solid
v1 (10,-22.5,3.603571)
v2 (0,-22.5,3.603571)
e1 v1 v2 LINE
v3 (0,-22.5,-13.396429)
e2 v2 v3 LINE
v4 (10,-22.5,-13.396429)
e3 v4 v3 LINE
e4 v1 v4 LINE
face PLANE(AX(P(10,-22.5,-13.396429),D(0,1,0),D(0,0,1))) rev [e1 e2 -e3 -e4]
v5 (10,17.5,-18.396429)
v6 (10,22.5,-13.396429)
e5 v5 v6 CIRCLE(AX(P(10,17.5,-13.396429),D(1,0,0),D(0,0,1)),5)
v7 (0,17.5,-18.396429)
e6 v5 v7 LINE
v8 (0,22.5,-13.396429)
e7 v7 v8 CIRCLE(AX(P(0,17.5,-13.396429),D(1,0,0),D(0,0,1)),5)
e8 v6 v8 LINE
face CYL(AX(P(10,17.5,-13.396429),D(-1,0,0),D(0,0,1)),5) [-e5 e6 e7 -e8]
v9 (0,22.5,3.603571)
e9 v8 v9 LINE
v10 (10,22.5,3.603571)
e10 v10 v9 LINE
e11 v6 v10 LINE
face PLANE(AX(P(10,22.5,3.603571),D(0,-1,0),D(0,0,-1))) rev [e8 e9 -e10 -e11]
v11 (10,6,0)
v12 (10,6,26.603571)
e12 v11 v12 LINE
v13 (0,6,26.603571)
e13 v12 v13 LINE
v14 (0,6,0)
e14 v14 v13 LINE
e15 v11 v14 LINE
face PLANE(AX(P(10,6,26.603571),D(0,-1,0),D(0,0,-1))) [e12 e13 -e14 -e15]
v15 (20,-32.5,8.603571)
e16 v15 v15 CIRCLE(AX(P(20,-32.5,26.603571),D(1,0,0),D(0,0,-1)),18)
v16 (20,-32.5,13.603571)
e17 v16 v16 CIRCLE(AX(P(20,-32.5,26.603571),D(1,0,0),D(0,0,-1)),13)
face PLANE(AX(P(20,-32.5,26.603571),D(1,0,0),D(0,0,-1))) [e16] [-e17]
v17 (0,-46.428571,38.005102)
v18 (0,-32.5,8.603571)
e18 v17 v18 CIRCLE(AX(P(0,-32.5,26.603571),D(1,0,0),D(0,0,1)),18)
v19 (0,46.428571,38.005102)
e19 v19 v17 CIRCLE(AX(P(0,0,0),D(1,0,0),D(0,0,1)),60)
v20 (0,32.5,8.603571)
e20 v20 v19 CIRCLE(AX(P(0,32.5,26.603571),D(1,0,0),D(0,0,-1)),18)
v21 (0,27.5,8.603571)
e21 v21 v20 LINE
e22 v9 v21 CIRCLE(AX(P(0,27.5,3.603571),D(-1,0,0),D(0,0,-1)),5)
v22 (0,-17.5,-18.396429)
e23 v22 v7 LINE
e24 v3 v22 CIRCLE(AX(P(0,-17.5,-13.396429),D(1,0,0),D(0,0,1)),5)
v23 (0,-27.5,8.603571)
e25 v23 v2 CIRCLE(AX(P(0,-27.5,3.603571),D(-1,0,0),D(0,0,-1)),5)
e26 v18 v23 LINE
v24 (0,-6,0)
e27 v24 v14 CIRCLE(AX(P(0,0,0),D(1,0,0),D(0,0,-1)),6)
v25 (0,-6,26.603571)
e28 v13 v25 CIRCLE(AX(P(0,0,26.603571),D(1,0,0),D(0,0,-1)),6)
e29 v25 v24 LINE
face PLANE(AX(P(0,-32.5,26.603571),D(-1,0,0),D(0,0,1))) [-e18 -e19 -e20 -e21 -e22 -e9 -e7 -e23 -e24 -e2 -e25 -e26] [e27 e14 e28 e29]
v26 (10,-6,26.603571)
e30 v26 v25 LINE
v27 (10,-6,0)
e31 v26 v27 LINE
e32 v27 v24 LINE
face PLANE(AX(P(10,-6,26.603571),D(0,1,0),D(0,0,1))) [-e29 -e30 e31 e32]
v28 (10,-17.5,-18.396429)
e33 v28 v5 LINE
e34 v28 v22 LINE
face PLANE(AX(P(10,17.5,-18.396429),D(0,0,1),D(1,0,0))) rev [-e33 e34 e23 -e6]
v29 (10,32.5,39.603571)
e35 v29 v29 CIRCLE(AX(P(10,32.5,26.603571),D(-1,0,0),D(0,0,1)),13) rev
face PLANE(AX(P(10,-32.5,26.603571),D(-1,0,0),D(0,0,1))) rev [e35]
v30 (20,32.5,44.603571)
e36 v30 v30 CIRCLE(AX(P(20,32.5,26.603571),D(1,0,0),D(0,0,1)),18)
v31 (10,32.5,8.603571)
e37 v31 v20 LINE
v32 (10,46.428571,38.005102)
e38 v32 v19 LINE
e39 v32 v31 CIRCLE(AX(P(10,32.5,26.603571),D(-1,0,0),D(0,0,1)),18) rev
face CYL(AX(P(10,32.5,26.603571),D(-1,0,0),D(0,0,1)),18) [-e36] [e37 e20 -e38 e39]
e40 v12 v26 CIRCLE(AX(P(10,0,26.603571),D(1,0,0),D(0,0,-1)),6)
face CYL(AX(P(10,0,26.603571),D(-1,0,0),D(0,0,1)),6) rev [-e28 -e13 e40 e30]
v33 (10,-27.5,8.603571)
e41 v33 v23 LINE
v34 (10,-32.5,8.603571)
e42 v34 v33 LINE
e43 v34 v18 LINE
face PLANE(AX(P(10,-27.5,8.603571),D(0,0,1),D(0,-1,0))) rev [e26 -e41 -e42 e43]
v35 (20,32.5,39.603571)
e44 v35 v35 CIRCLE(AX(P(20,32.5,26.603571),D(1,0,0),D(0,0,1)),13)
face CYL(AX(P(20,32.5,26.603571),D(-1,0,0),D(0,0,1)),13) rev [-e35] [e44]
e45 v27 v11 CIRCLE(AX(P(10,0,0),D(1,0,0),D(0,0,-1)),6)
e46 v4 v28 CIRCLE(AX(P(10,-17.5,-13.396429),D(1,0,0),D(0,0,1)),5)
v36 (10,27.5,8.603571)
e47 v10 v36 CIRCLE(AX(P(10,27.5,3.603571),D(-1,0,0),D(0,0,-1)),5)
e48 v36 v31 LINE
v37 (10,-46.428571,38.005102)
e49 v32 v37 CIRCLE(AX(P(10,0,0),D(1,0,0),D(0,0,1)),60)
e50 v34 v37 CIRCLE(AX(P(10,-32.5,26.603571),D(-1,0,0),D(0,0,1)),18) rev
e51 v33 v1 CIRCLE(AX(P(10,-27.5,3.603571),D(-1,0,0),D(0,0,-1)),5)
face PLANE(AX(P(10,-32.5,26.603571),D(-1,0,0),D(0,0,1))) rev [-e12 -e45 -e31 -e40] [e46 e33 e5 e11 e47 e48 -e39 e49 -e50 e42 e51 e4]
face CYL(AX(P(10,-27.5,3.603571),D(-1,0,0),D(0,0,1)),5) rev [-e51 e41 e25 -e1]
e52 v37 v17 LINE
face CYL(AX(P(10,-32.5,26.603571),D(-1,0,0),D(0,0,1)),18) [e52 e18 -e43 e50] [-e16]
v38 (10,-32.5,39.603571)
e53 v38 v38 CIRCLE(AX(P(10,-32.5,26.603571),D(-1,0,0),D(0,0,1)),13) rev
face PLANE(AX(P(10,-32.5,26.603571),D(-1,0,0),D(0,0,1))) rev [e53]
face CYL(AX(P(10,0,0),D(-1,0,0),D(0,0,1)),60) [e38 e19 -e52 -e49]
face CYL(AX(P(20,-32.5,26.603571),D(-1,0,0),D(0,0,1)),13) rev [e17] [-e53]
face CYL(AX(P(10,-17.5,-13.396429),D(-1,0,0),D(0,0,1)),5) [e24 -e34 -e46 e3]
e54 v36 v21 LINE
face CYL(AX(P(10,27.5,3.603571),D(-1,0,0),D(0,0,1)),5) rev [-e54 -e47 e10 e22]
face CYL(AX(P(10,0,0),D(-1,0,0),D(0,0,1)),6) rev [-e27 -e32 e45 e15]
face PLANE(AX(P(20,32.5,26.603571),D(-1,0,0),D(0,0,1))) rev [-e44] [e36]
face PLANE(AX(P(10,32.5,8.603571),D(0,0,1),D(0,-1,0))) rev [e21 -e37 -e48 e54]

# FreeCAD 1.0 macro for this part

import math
import FreeCAD as App
import Part
import Sketcher

V = App.Vector

doc = App.newDocument("Part")
params = doc.addObject("Spreadsheet::Sheet", "Params")
for row, (alias, value) in enumerate([
    ("sketch1_radius", "18 mm"),
    ("sketch1_radius2", "60 mm"),
    ("sketch1_radius3", "5 mm"),
    ("sketch1_radius4", "6 mm"),
    ("sketch1_width", "5 mm"),
    ("pad1_length", "10 mm"),
    ("sketch2_diameter", "36 mm"),
    ("sketch2_diameter2", "26 mm"),
    ("pad2_length", "20 mm"),
], start=1):
    params.set(f"A{row}", alias)
    params.set(f"B{row}", "=" + value)
    params.setAlias(f"B{row}", alias)

body = doc.addObject("PartDesign::Body", "Body")

# Sketch on YZ plane
sketch1 = body.newObject("Sketcher::SketchObject", "Sketch")
sketch1.AttachmentSupport = (doc.getObject("YZ_Plane"), [""])
sketch1.MapMode = "FlatFace"
sketch1.addGeometry([
    Part.LineSegment(V(28, 9, 0), V(32, 9, 0)),  # 0
    Part.ArcOfCircle(Part.Circle(V(32, 27, 0), V(0, 0, 1), 18), math.radians(-90), math.radians(39)),  # 1
    Part.ArcOfCircle(Part.Circle(V(0, 0, 0), V(0, 0, 1), 60), math.radians(39), math.radians(141)),  # 2
    Part.ArcOfCircle(Part.Circle(V(-32, 27, 0), V(0, 0, 1), 18), math.radians(141), math.radians(270)),  # 3
    Part.LineSegment(V(-32, 9, 0), V(-28, 9, 0)),  # 4
    Part.ArcOfCircle(Part.Circle(V(-28, 4, 0), V(0, 0, 1), 5), math.radians(0), math.radians(90)),  # 5
    Part.LineSegment(V(-22, 4, 0), V(-22, -13, 0)),  # 6
    Part.ArcOfCircle(Part.Circle(V(-18, -13, 0), V(0, 0, 1), 5), math.radians(180), math.radians(270)),  # 7
    Part.LineSegment(V(-18, -18, 0), V(18, -18, 0)),  # 8
    Part.ArcOfCircle(Part.Circle(V(18, -13, 0), V(0, 0, 1), 5), math.radians(-90), math.radians(0)),  # 9
    Part.LineSegment(V(22, -13, 0), V(22, 4, 0)),  # 10
    Part.ArcOfCircle(Part.Circle(V(28, 4, 0), V(0, 0, 1), 5), math.radians(90), math.radians(180)),  # 11
    Part.LineSegment(V(6, 27, 0), V(6, 0, 0)),  # 12
    Part.ArcOfCircle(Part.Circle(V(0, 0, 0), V(0, 0, 1), 6), math.radians(180), math.radians(360)),  # 13
    Part.LineSegment(V(-6, 0, 0), V(-6, 27, 0)),  # 14
    Part.ArcOfCircle(Part.Circle(V(0, 27, 0), V(0, 0, 1), 6), math.radians(0), math.radians(180)),  # 15
], False)
sketch1.addConstraint([
    Sketcher.Constraint("Tangent", 0, 2, 1, 1),
    Sketcher.Constraint("Tangent", 1, 2, 2, 1),
    Sketcher.Constraint("Tangent", 2, 2, 3, 1),
    Sketcher.Constraint("Tangent", 3, 2, 4, 1),
    Sketcher.Constraint("Tangent", 4, 2, 5, 2),
    Sketcher.Constraint("Tangent", 5, 1, 6, 1),
    Sketcher.Constraint("Tangent", 6, 2, 7, 1),
    Sketcher.Constraint("Tangent", 7, 2, 8, 1),
    Sketcher.Constraint("Tangent", 8, 2, 9, 1),
    Sketcher.Constraint("Tangent", 9, 2, 10, 1),
    Sketcher.Constraint("Tangent", 10, 2, 11, 2),
    Sketcher.Constraint("Tangent", 11, 1, 0, 1),
    Sketcher.Constraint("Tangent", 12, 2, 13, 2),
    Sketcher.Constraint("Tangent", 13, 1, 14, 1),
    Sketcher.Constraint("Tangent", 14, 2, 15, 2),
    Sketcher.Constraint("Tangent", 15, 1, 12, 1),
    Sketcher.Constraint("Horizontal", 0),
    Sketcher.Constraint("Horizontal", 4),
    Sketcher.Constraint("Vertical", 6),
    Sketcher.Constraint("Horizontal", 8),
    Sketcher.Constraint("Vertical", 10),
    Sketcher.Constraint("Vertical", 12),
    Sketcher.Constraint("Vertical", 14),
    Sketcher.Constraint("Coincident", 2, 3, -1, 1),
    Sketcher.Constraint("Coincident", 13, 3, -1, 1),
    Sketcher.Constraint("Equal", 1, 3),
    Sketcher.Constraint("Equal", 5, 7),
    Sketcher.Constraint("Equal", 7, 9),
    Sketcher.Constraint("Equal", 9, 11),
    Sketcher.Constraint("Symmetric", 5, 3, 11, 3, -2),
    Sketcher.Constraint("Horizontal", 3, 3, 15, 3),
    Sketcher.Constraint("Radius", 1, 18.0),
    Sketcher.Constraint("Radius", 2, 60.0),
    Sketcher.Constraint("Radius", 5, 5.0),
    Sketcher.Constraint("Radius", 13, 6.0),
    Sketcher.Constraint("DistanceX", 0, 1, 0, 2, 5.0),
    Sketcher.Constraint("DistanceX", 8, 1, 8, 2, 35.0),
    Sketcher.Constraint("DistanceY", 6, 2, 6, 1, 17.0),
])
sketch1.setExpression("Constraints[31]", "Params.sketch1_radius")
sketch1.setExpression("Constraints[32]", "Params.sketch1_radius2")
sketch1.setExpression("Constraints[33]", "Params.sketch1_radius3")
sketch1.setExpression("Constraints[34]", "Params.sketch1_radius4")
sketch1.setExpression("Constraints[35]", "Params.sketch1_width")
pad1 = body.newObject("PartDesign::Pad", "Pad")
pad1.Profile = sketch1
pad1.setExpression("Length", "Params.pad1_length")

# Sketch on YZ plane
sketch2 = body.newObject("Sketcher::SketchObject", "Sketch001")
sketch2.AttachmentSupport = (doc.getObject("YZ_Plane"), [""])
sketch2.MapMode = "FlatFace"
sketch2.addGeometry([
    Part.Circle(V(-32, 27, 0), V(0, 0, 1), 18),
    Part.Circle(V(-32, 27, 0), V(0, 0, 1), 13),
    Part.Circle(V(32, 27, 0), V(0, 0, 1), 18),
    Part.Circle(V(32, 27, 0), V(0, 0, 1), 13),
], False)
sketch2.addConstraint([
    Sketcher.Constraint("Coincident", 1, 3, 0, 3),
    Sketcher.Constraint("Coincident", 3, 3, 2, 3),
    Sketcher.Constraint("Equal", 0, 2),
    Sketcher.Constraint("Equal", 1, 3),
    Sketcher.Constraint("Symmetric", 0, 3, 2, 3, -2),
    Sketcher.Constraint("Diameter", 0, 36.0),
    Sketcher.Constraint("Diameter", 1, 26.0),
    Sketcher.Constraint("DistanceX", 0, 3, 2, 3, 65.0),
    Sketcher.Constraint("DistanceY", -1, 1, 0, 3, 26.603571),
])
sketch2.setExpression("Constraints[5]", "Params.sketch2_diameter")
sketch2.setExpression("Constraints[6]", "Params.sketch2_diameter2")
pad2 = body.newObject("PartDesign::Pad", "Pad001")
pad2.Profile = sketch2
pad2.setExpression("Length", "Params.pad2_length")

doc.recompute()
